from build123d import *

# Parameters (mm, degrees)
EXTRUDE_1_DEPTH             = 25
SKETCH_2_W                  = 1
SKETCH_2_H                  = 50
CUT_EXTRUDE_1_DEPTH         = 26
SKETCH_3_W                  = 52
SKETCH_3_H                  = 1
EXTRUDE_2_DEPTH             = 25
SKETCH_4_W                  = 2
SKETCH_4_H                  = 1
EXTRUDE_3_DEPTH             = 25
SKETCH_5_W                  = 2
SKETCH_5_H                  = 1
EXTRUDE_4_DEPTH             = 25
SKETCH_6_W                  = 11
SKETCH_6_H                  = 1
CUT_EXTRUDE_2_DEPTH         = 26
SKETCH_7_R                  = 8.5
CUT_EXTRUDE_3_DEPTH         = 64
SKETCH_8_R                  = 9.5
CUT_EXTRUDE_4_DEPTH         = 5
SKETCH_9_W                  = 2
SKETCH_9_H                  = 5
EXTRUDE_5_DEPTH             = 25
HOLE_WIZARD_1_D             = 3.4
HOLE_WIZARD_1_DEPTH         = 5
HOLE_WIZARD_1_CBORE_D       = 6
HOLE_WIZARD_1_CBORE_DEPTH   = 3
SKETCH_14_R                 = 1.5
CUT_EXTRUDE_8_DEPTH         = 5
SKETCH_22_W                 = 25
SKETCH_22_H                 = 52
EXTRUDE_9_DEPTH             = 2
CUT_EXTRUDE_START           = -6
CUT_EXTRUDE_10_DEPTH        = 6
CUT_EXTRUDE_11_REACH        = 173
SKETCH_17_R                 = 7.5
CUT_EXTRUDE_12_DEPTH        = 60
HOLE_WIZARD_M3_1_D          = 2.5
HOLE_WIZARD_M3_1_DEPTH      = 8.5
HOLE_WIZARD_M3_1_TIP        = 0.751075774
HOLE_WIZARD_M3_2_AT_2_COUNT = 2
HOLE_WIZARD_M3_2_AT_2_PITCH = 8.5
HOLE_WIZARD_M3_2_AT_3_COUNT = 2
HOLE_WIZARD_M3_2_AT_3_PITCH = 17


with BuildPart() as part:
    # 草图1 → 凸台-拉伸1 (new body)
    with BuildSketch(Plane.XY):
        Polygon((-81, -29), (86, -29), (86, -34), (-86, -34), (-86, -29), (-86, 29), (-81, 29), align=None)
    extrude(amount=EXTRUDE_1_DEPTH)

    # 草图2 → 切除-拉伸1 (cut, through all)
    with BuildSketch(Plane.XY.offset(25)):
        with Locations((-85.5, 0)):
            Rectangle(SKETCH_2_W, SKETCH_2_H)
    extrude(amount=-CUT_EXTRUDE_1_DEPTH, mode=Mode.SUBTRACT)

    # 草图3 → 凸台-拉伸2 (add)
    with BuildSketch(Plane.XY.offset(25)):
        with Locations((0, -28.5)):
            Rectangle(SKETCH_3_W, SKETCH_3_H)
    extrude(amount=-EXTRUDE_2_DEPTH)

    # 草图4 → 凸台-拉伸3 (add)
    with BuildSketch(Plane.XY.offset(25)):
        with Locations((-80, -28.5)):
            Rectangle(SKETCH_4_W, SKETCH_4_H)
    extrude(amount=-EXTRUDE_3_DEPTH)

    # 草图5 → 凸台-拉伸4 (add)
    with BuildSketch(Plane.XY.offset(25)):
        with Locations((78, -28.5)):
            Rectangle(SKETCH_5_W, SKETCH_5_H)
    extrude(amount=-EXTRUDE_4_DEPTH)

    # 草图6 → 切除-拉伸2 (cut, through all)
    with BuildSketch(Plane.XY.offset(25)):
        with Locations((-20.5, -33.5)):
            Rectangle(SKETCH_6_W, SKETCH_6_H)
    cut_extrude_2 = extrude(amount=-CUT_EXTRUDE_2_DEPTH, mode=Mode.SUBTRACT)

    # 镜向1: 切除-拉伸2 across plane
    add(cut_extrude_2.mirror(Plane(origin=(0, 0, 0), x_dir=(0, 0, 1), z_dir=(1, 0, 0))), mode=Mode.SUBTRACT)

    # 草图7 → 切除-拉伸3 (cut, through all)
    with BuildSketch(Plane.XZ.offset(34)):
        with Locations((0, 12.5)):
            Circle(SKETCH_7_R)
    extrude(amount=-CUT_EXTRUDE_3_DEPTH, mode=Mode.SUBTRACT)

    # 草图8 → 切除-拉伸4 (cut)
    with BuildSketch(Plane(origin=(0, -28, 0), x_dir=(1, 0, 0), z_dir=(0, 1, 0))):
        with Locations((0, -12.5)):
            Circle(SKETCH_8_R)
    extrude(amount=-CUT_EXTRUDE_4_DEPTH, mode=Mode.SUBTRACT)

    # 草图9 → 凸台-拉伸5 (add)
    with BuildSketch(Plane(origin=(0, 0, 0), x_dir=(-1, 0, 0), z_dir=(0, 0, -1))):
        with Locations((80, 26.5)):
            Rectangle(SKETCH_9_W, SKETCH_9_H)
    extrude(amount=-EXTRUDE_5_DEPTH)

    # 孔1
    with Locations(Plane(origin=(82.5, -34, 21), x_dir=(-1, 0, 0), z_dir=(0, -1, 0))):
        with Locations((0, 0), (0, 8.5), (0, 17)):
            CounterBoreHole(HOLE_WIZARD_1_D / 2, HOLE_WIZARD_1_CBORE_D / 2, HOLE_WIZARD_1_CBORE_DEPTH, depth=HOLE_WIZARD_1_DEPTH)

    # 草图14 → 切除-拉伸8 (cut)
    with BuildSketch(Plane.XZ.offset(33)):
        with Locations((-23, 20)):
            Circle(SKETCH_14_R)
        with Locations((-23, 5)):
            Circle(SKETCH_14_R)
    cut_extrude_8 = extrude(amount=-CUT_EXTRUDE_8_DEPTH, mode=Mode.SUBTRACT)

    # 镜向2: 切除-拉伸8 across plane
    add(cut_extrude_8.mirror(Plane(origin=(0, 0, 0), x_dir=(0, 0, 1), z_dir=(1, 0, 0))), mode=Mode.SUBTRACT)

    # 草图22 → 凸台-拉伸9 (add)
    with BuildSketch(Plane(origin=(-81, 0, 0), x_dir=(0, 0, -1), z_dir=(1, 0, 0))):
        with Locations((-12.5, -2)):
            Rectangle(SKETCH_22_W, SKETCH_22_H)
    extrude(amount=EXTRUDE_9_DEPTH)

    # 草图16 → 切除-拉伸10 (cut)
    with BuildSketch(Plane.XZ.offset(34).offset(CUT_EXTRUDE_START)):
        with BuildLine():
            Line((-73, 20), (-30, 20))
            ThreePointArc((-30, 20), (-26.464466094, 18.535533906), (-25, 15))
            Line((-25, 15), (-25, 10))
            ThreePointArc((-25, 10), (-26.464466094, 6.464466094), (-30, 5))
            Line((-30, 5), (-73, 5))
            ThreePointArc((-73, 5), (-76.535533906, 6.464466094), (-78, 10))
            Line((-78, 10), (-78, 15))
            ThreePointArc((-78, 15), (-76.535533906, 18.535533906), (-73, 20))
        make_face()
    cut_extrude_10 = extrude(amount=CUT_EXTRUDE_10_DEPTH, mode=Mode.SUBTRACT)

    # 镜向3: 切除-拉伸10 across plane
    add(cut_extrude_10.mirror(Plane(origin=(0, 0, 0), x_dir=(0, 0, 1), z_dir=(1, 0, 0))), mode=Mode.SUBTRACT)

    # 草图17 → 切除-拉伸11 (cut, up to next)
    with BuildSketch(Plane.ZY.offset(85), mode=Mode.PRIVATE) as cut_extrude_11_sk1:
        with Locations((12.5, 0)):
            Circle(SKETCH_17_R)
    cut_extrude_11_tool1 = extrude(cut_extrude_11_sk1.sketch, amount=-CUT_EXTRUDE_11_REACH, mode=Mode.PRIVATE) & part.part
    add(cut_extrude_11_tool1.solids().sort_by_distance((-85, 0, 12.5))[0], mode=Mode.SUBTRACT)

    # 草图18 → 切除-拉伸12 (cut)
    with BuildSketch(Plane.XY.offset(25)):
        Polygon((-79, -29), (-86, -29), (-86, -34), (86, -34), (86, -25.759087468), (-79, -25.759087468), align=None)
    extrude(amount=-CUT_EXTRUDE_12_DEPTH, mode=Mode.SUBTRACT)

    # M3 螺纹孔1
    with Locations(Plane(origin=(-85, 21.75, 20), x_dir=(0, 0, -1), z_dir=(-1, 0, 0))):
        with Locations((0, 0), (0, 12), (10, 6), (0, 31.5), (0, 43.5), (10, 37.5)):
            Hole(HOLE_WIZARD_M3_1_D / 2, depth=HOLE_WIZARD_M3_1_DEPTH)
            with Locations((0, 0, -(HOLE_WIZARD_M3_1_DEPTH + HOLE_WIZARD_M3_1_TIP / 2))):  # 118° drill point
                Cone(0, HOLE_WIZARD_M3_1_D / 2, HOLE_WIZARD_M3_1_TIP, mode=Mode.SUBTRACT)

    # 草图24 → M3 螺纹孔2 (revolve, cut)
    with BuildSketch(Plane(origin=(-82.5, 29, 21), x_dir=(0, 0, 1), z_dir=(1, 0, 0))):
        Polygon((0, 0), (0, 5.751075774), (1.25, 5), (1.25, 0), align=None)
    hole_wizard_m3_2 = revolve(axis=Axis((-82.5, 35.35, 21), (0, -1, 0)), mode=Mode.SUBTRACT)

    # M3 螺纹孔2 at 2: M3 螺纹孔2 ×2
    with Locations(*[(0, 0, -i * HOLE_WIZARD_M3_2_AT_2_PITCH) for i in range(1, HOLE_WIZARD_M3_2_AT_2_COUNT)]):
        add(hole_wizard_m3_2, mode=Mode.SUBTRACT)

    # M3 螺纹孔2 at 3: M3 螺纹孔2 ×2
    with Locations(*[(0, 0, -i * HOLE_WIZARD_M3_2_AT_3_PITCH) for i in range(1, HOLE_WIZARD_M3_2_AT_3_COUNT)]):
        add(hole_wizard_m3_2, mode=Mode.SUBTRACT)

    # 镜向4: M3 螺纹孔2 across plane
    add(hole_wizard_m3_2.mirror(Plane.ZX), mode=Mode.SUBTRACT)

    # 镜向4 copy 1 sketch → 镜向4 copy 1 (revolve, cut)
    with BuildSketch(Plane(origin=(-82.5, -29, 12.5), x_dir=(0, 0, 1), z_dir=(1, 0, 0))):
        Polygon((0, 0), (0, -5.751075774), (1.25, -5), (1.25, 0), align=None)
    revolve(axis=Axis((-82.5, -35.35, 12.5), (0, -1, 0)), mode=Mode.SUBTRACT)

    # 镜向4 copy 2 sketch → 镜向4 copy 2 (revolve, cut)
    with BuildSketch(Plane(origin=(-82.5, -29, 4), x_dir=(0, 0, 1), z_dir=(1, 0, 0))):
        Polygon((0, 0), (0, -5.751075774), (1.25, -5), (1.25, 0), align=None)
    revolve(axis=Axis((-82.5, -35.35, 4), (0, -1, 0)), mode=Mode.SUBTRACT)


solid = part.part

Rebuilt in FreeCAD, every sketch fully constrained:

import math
import FreeCAD as App
import Part
import Sketcher

V = App.Vector
Q = App.Units.Quantity


def add_polygon(sketch, points):
    """Adds a closed chain of lines whose ends are joined by coincident constraints."""
    first, n = sketch.GeometryCount, len(points)
    for a, b in zip(points, points[1:] + points[:1]):
        sketch.addGeometry(Part.LineSegment(App.Vector(*a, 0), App.Vector(*b, 0)), False)
    for i in range(n):
        sketch.addConstraint(Sketcher.Constraint("Coincident", first + i, 2, first + (i + 1) % n, 1))

doc = App.newDocument("Part")
body = doc.addObject("PartDesign::Body", "Body")

sketch1 = body.newObject("Sketcher::SketchObject", "Sketch")
sketch1.AttachmentSupport = (doc.getObject("XY_Plane"), [""])
sketch1.MapMode = "FlatFace"
add_polygon(sketch1, [(86, -29), (-81, -29), (-81, 29), (-86, 29), (-86, -34), (86, -34)])
sketch1.addConstraint(Sketcher.Constraint("Horizontal", 0))
sketch1.addConstraint(Sketcher.Constraint("Vertical", 1))
sketch1.addConstraint(Sketcher.Constraint("Horizontal", 2))
sketch1.addConstraint(Sketcher.Constraint("Vertical", 3))
sketch1.addConstraint(Sketcher.Constraint("Horizontal", 4))
sketch1.addConstraint(Sketcher.Constraint("Vertical", 5))
sketch1.addConstraint(Sketcher.Constraint("Symmetric", 2, 2, 5, 2, -1, 1))
sketch1.addConstraint(Sketcher.Constraint("Equal", 2, 5))
sketch1.addConstraint(Sketcher.Constraint("DistanceX", 0, 2, 0, 1, Q("167 mm")))
sketch1.addConstraint(Sketcher.Constraint("DistanceX", 2, 2, 2, 1, Q("5 mm")))
sketch1.addConstraint(Sketcher.Constraint("DistanceY", 1, 1, 1, 2, Q("58 mm")))
pad1 = body.newObject("PartDesign::Pad", "Pad")
pad1.Profile = sketch1
pad1.Length = 25

sketch2 = body.newObject("Sketcher::SketchObject", "Sketch001")
sketch2.AttachmentSupport = (doc.getObject("XY_Plane"), [""])
sketch2.MapMode = "FlatFace"
sketch2.AttachmentOffset = App.Placement(V(0, 0, 25), App.Rotation())
add_polygon(sketch2, [(-86, 25), (-86, -25), (-85, -25), (-85, 25)])
sketch2.addConstraint(Sketcher.Constraint("Vertical", 0))
sketch2.addConstraint(Sketcher.Constraint("Horizontal", 1))
sketch2.addConstraint(Sketcher.Constraint("Vertical", 2))
sketch2.addConstraint(Sketcher.Constraint("Horizontal", 3))
sketch2.addConstraint(Sketcher.Constraint("DistanceX", 1, 1, 1, 2, Q("1 mm")))
sketch2.addConstraint(Sketcher.Constraint("DistanceY", 0, 2, 0, 1, Q("50 mm")))
sketch2.addConstraint(Sketcher.Constraint("DistanceX", 0, 2, -1, 1, Q("86 mm")))
sketch2.addConstraint(Sketcher.Constraint("DistanceY", 0, 2, -1, 1, Q("25 mm")))
pocket1 = body.newObject("PartDesign::Pocket", "Pocket")
pocket1.Profile = sketch2
pocket1.Type = "ThroughAll"

sketch3 = body.newObject("Sketcher::SketchObject", "Sketch002")
sketch3.AttachmentSupport = (doc.getObject("XY_Plane"), [""])
sketch3.MapMode = "FlatFace"
sketch3.AttachmentOffset = App.Placement(V(0, 0, 25), App.Rotation())
add_polygon(sketch3, [(-26, -28), (-26, -29), (26, -29), (26, -28)])
sketch3.addConstraint(Sketcher.Constraint("Vertical", 0))
sketch3.addConstraint(Sketcher.Constraint("Horizontal", 1))
sketch3.addConstraint(Sketcher.Constraint("Vertical", 2))
sketch3.addConstraint(Sketcher.Constraint("Horizontal", 3))
sketch3.addConstraint(Sketcher.Constraint("DistanceX", 1, 1, 1, 2, Q("52 mm")))
sketch3.addConstraint(Sketcher.Constraint("DistanceY", 0, 2, 0, 1, Q("1 mm")))
sketch3.addConstraint(Sketcher.Constraint("DistanceX", 0, 2, -1, 1, Q("26 mm")))
sketch3.addConstraint(Sketcher.Constraint("DistanceY", 0, 2, -1, 1, Q("29 mm")))
pad2 = body.newObject("PartDesign::Pad", "Pad001")
pad2.Profile = sketch3
pad2.Length = 25
pad2.Reversed = True

sketch4 = body.newObject("Sketcher::SketchObject", "Sketch003")
sketch4.AttachmentSupport = (doc.getObject("XY_Plane"), [""])
sketch4.MapMode = "FlatFace"
sketch4.AttachmentOffset = App.Placement(V(0, 0, 25), App.Rotation())
add_polygon(sketch4, [(-81, -28), (-81, -29), (-79, -29), (-79, -28)])
sketch4.addConstraint(Sketcher.Constraint("Vertical", 0))
sketch4.addConstraint(Sketcher.Constraint("Horizontal", 1))
sketch4.addConstraint(Sketcher.Constraint("Vertical", 2))
sketch4.addConstraint(Sketcher.Constraint("Horizontal", 3))
sketch4.addConstraint(Sketcher.Constraint("DistanceX", 1, 1, 1, 2, Q("2 mm")))
sketch4.addConstraint(Sketcher.Constraint("DistanceY", 0, 2, 0, 1, Q("1 mm")))
sketch4.addConstraint(Sketcher.Constraint("DistanceX", 0, 2, -1, 1, Q("81 mm")))
sketch4.addConstraint(Sketcher.Constraint("DistanceY", 0, 2, -1, 1, Q("29 mm")))
pad3 = body.newObject("PartDesign::Pad", "Pad002")
pad3.Profile = sketch4
pad3.Length = 25
pad3.Reversed = True

sketch5 = body.newObject("Sketcher::SketchObject", "Sketch004")
sketch5.AttachmentSupport = (doc.getObject("XY_Plane"), [""])
sketch5.MapMode = "FlatFace"
sketch5.AttachmentOffset = App.Placement(V(0, 0, 25), App.Rotation())
add_polygon(sketch5, [(77, -28), (77, -29), (79, -29), (79, -28)])
sketch5.addConstraint(Sketcher.Constraint("Vertical", 0))
sketch5.addConstraint(Sketcher.Constraint("Horizontal", 1))
sketch5.addConstraint(Sketcher.Constraint("Vertical", 2))
sketch5.addConstraint(Sketcher.Constraint("Horizontal", 3))
sketch5.addConstraint(Sketcher.Constraint("DistanceX", 1, 1, 1, 2, Q("2 mm")))
sketch5.addConstraint(Sketcher.Constraint("DistanceY", 0, 2, 0, 1, Q("1 mm")))
sketch5.addConstraint(Sketcher.Constraint("DistanceX", -1, 1, 0, 2, Q("77 mm")))
sketch5.addConstraint(Sketcher.Constraint("DistanceY", 0, 2, -1, 1, Q("29 mm")))
pad4 = body.newObject("PartDesign::Pad", "Pad003")
pad4.Profile = sketch5
pad4.Length = 25
pad4.Reversed = True

sketch6 = body.newObject("Sketcher::SketchObject", "Sketch005")
sketch6.AttachmentSupport = (doc.getObject("XY_Plane"), [""])
sketch6.MapMode = "FlatFace"
sketch6.AttachmentOffset = App.Placement(V(0, 0, 25), App.Rotation())
add_polygon(sketch6, [(-26, -33), (-26, -34), (-15, -34), (-15, -33)])
sketch6.addConstraint(Sketcher.Constraint("Vertical", 0))
sketch6.addConstraint(Sketcher.Constraint("Horizontal", 1))
sketch6.addConstraint(Sketcher.Constraint("Vertical", 2))
sketch6.addConstraint(Sketcher.Constraint("Horizontal", 3))
sketch6.addConstraint(Sketcher.Constraint("DistanceX", 1, 1, 1, 2, Q("11 mm")))
sketch6.addConstraint(Sketcher.Constraint("DistanceY", 0, 2, 0, 1, Q("1 mm")))
sketch6.addConstraint(Sketcher.Constraint("DistanceX", 0, 2, -1, 1, Q("26 mm")))
sketch6.addConstraint(Sketcher.Constraint("DistanceY", 0, 2, -1, 1, Q("34 mm")))
pocket2 = body.newObject("PartDesign::Pocket", "Pocket001")
pocket2.Profile = sketch6
pocket2.Type = "ThroughAll"
doc.recompute()

mirrored = body.newObject("PartDesign::Mirrored", "Mirrored")
mirrored.Originals = [pocket2]
mirrored.MirrorPlane = (doc.getObject("YZ_Plane"), [""])
body.Tip = mirrored

sketch7 = body.newObject("Sketcher::SketchObject", "Sketch006")
sketch7.AttachmentSupport = (doc.getObject("XZ_Plane"), [""])
sketch7.MapMode = "FlatFace"
sketch7.AttachmentOffset = App.Placement(V(0, 0, 34), App.Rotation())
sketch7.addGeometry(Part.Circle(V(0, 12, 0), V(0, 0, 1), 8), False)
sketch7.addConstraint(Sketcher.Constraint("PointOnObject", 0, 3, -2))
sketch7.addConstraint(Sketcher.Constraint("Diameter", 0, Q("17 mm")))
sketch7.addConstraint(Sketcher.Constraint("DistanceY", -1, 1, 0, 3, Q("12.5 mm")))
pocket3 = body.newObject("PartDesign::Pocket", "Pocket002")
pocket3.Profile = sketch7
pocket3.Type = "ThroughAll"

sketch8 = body.newObject("Sketcher::SketchObject", "Sketch007")
sketch8.AttachmentSupport = (doc.getObject("XZ_Plane"), [""])
sketch8.MapMode = "FlatFace"
sketch8.AttachmentOffset = App.Placement(V(0, 0, 28), App.Rotation())
sketch8.addGeometry(Part.Circle(V(0, 12, 0), V(0, 0, 1), 10), False)
sketch8.addConstraint(Sketcher.Constraint("PointOnObject", 0, 3, -2))
sketch8.addConstraint(Sketcher.Constraint("Diameter", 0, Q("19 mm")))
sketch8.addConstraint(Sketcher.Constraint("DistanceY", -1, 1, 0, 3, Q("12.5 mm")))
pocket4 = body.newObject("PartDesign::Pocket", "Pocket003")
pocket4.Profile = sketch8
pocket4.Length = 5
pocket4.Reversed = True

sketch9 = body.newObject("Sketcher::SketchObject", "Sketch008")
sketch9.AttachmentSupport = (doc.getObject("XY_Plane"), [""])
sketch9.MapMode = "FlatFace"
add_polygon(sketch9, [(-79, 29), (-79, 24), (-81, 24), (-81, 29)])
sketch9.addConstraint(Sketcher.Constraint("Vertical", 0))
sketch9.addConstraint(Sketcher.Constraint("Horizontal", 1))
sketch9.addConstraint(Sketcher.Constraint("Vertical", 2))
sketch9.addConstraint(Sketcher.Constraint("Horizontal", 3))
sketch9.addConstraint(Sketcher.Constraint("DistanceX", 1, 2, 1, 1, Q("2 mm")))
sketch9.addConstraint(Sketcher.Constraint("DistanceY", 0, 2, 0, 1, Q("5 mm")))
sketch9.addConstraint(Sketcher.Constraint("DistanceX", 0, 2, -1, 1, Q("79 mm")))
sketch9.addConstraint(Sketcher.Constraint("DistanceY", -1, 1, 0, 2, Q("24 mm")))
pad5 = body.newObject("PartDesign::Pad", "Pad004")
pad5.Profile = sketch9
pad5.Length = 25

sketch10 = body.newObject("Sketcher::SketchObject", "Sketch009")
sketch10.AttachmentSupport = (doc.getObject("XZ_Plane"), [""])
sketch10.MapMode = "FlatFace"
sketch10.AttachmentOffset = App.Placement(V(0, 0, 34), App.Rotation())
sketch10.addGeometry(Part.Circle(V(82.5, 21, 0), V(0, 0, 1), 1.7), False)
sketch10.addGeometry(Part.Circle(V(82.5, 12.5, 0), V(0, 0, 1), 1.7), False)
sketch10.addGeometry(Part.Circle(V(82.5, 4, 0), V(0, 0, 1), 1.7), False)
sketch10.addConstraint(Sketcher.Constraint("Equal", 0, 1))
sketch10.addConstraint(Sketcher.Constraint("Equal", 1, 2))
sketch10.addConstraint(Sketcher.Constraint("Vertical", 0, 3, 1, 3))
sketch10.addConstraint(Sketcher.Constraint("Vertical", 1, 3, 2, 3))
sketch10.addConstraint(Sketcher.Constraint("Diameter", 0, Q("3.4 mm")))
sketch10.addConstraint(Sketcher.Constraint("DistanceY", -1, 1, 0, 3, Q("21 mm")))
sketch10.addConstraint(Sketcher.Constraint("DistanceY", -1, 1, 2, 3, Q("4 mm")))
sketch10.addConstraint(Sketcher.Constraint("DistanceX", -1, 1, 0, 3, Q("82.5 mm")))
sketch10.addConstraint(Sketcher.Constraint("DistanceY", -1, 1, 1, 3, Q("12.5 mm")))
doc.recompute()
hole = body.newObject("PartDesign::Hole", "Hole")
hole.Profile = sketch10
hole.ThreadType = "None"
hole.Diameter = 3.4
hole.DepthType = "Dimension"
hole.Depth = 5
hole.DrillPoint = "Flat"
hole.HoleCutType = "Counterbore"
hole.HoleCutDiameter = 6
hole.HoleCutDepth = 3

sketch11 = body.newObject("Sketcher::SketchObject", "Sketch010")
sketch11.AttachmentSupport = (doc.getObject("XZ_Plane"), [""])
sketch11.MapMode = "FlatFace"
sketch11.AttachmentOffset = App.Placement(V(0, 0, 33), App.Rotation())
sketch11.addGeometry(Part.Circle(V(-23, 20, 0), V(0, 0, 1), 1.5), False)
sketch11.addGeometry(Part.Circle(V(-23, 5, 0), V(0, 0, 1), 1.5), False)
sketch11.addConstraint(Sketcher.Constraint("Equal", 0, 1))
sketch11.addConstraint(Sketcher.Constraint("Vertical", 0, 3, 1, 3))
sketch11.addConstraint(Sketcher.Constraint("Diameter", 0, Q("3 mm")))
sketch11.addConstraint(Sketcher.Constraint("DistanceX", 0, 3, -1, 1, Q("23 mm")))
sketch11.addConstraint(Sketcher.Constraint("DistanceY", -1, 1, 0, 3, Q("20 mm")))
sketch11.addConstraint(Sketcher.Constraint("DistanceY", -1, 1, 1, 3, Q("5 mm")))
pocket5 = body.newObject("PartDesign::Pocket", "Pocket004")
pocket5.Profile = sketch11
pocket5.Length = 5
doc.recompute()

mirrored2 = body.newObject("PartDesign::Mirrored", "Mirrored001")
mirrored2.Originals = [pocket5]
mirrored2.MirrorPlane = (doc.getObject("YZ_Plane"), [""])
body.Tip = mirrored2

sketch12 = body.newObject("Sketcher::SketchObject", "Sketch011")
sketch12.AttachmentSupport = (doc.getObject("YZ_Plane"), [""])
sketch12.MapMode = "FlatFace"
sketch12.AttachmentOffset = App.Placement(V(0, 0, -81), App.Rotation())
add_polygon(sketch12, [(24, 25), (-28, 25), (-28, 0), (24, 0)])
sketch12.addConstraint(Sketcher.Constraint("Horizontal", 0))
sketch12.addConstraint(Sketcher.Constraint("Vertical", 1))
sketch12.addConstraint(Sketcher.Constraint("Horizontal", 2))
sketch12.addConstraint(Sketcher.Constraint("Vertical", 3))
sketch12.addConstraint(Sketcher.Constraint("PointOnObject", 1, 2, -1))
sketch12.addConstraint(Sketcher.Constraint("DistanceX", 0, 2, 0, 1, Q("52 mm")))
sketch12.addConstraint(Sketcher.Constraint("DistanceY", 1, 2, 1, 1, Q("25 mm")))
sketch12.addConstraint(Sketcher.Constraint("DistanceX", 0, 2, -1, 1, Q("28 mm")))
pad6 = body.newObject("PartDesign::Pad", "Pad005")
pad6.Profile = sketch12
pad6.Length = 2

sketch13 = body.newObject("Sketcher::SketchObject", "Sketch012")
sketch13.AttachmentSupport = (doc.getObject("XZ_Plane"), [""])
sketch13.MapMode = "FlatFace"
sketch13.AttachmentOffset = App.Placement(V(0, 0, 28), App.Rotation())
sketch13.addGeometry(Part.LineSegment(V(-30, 20, 0), V(-73, 20, 0)), False)
sketch13.addGeometry(Part.ArcOfCircle(Part.Circle(V(-73, 15, 0), V(0, 0, 1), 5), math.radians(90), math.radians(180)), False)
sketch13.addGeometry(Part.LineSegment(V(-78, 15, 0), V(-78, 10, 0)), False)
sketch13.addGeometry(Part.ArcOfCircle(Part.Circle(V(-73, 10, 0), V(0, 0, 1), 5), math.radians(180), math.radians(270)), False)
sketch13.addGeometry(Part.LineSegment(V(-73, 5, 0), V(-30, 5, 0)), False)
sketch13.addGeometry(Part.ArcOfCircle(Part.Circle(V(-30, 10, 0), V(0, 0, 1), 5), math.radians(-90), math.radians(0)), False)
sketch13.addGeometry(Part.LineSegment(V(-25, 10, 0), V(-25, 15, 0)), False)
sketch13.addGeometry(Part.ArcOfCircle(Part.Circle(V(-30, 15, 0), V(0, 0, 1), 5), math.radians(0), math.radians(90)), False)
sketch13.addConstraint(Sketcher.Constraint("Tangent", 0, 2, 1, 1))
sketch13.addConstraint(Sketcher.Constraint("Tangent", 1, 2, 2, 1))
sketch13.addConstraint(Sketcher.Constraint("Tangent", 2, 2, 3, 1))
sketch13.addConstraint(Sketcher.Constraint("Tangent", 3, 2, 4, 1))
sketch13.addConstraint(Sketcher.Constraint("Tangent", 4, 2, 5, 1))
sketch13.addConstraint(Sketcher.Constraint("Tangent", 5, 2, 6, 1))
sketch13.addConstraint(Sketcher.Constraint("Tangent", 6, 2, 7, 1))
sketch13.addConstraint(Sketcher.Constraint("Tangent", 7, 2, 0, 1))
sketch13.addConstraint(Sketcher.Constraint("Horizontal", 0))
sketch13.addConstraint(Sketcher.Constraint("Vertical", 2))
sketch13.addConstraint(Sketcher.Constraint("Horizontal", 4))
sketch13.addConstraint(Sketcher.Constraint("Vertical", 6))
sketch13.addConstraint(Sketcher.Constraint("Equal", 1, 3))
sketch13.addConstraint(Sketcher.Constraint("Equal", 3, 5))
sketch13.addConstraint(Sketcher.Constraint("Equal", 5, 7))
sketch13.addConstraint(Sketcher.Constraint("Radius", 1, Q("5 mm")))
sketch13.addConstraint(Sketcher.Constraint("DistanceX", 0, 2, 0, 1, Q("43 mm")))
sketch13.addConstraint(Sketcher.Constraint("DistanceY", 2, 2, 2, 1, Q("5 mm")))
sketch13.addConstraint(Sketcher.Constraint("DistanceX", 1, 3, -1, 1, Q("73 mm")))
sketch13.addConstraint(Sketcher.Constraint("DistanceY", -1, 1, 1, 3, Q("15 mm")))
pocket6 = body.newObject("PartDesign::Pocket", "Pocket005")
pocket6.Profile = sketch13
pocket6.Length = 6
pocket6.Reversed = True
doc.recompute()

mirrored3 = body.newObject("PartDesign::Mirrored", "Mirrored002")
mirrored3.Originals = [pocket6]
mirrored3.MirrorPlane = (doc.getObject("YZ_Plane"), [""])
body.Tip = mirrored3

sketch14 = body.newObject("Sketcher::SketchObject", "Sketch013")
sketch14.AttachmentSupport = (doc.getObject("YZ_Plane"), [""])
sketch14.MapMode = "FlatFace"
sketch14.AttachmentOffset = App.Placement(V(0, 0, -85), App.Rotation())
sketch14.addGeometry(Part.Circle(V(0, 12, 0), V(0, 0, 1), 8), False)
sketch14.addConstraint(Sketcher.Constraint("PointOnObject", 0, 3, -2))
sketch14.addConstraint(Sketcher.Constraint("Diameter", 0, Q("15 mm")))
sketch14.addConstraint(Sketcher.Constraint("DistanceY", -1, 1, 0, 3, Q("12.5 mm")))
pocket7 = body.newObject("PartDesign::Pocket", "Pocket006")
pocket7.Profile = sketch14
pocket7.Type = "UpToFirst"
pocket7.Reversed = True

sketch15 = body.newObject("Sketcher::SketchObject", "Sketch014")
sketch15.AttachmentSupport = (doc.getObject("XY_Plane"), [""])
sketch15.MapMode = "FlatFace"
sketch15.AttachmentOffset = App.Placement(V(0, 0, 25), App.Rotation())
add_polygon(sketch15, [(-79, -29), (-86, -29), (-86, -34), (86, -34), (86, -25.8), (-79, -25.8)])
sketch15.addConstraint(Sketcher.Constraint("Horizontal", 0))
sketch15.addConstraint(Sketcher.Constraint("Vertical", 1))
sketch15.addConstraint(Sketcher.Constraint("Horizontal", 2))
sketch15.addConstraint(Sketcher.Constraint("Vertical", 3))
sketch15.addConstraint(Sketcher.Constraint("Horizontal", 4))
sketch15.addConstraint(Sketcher.Constraint("Vertical", 5))
sketch15.addConstraint(Sketcher.Constraint("DistanceX", 0, 2, 0, 1, Q("7 mm")))
sketch15.addConstraint(Sketcher.Constraint("DistanceX", 2, 1, 2, 2, Q("172 mm")))
sketch15.addConstraint(Sketcher.Constraint("DistanceY", 1, 2, 1, 1, Q("5 mm")))
sketch15.addConstraint(Sketcher.Constraint("DistanceX", 0, 2, -1, 1, Q("86 mm")))
sketch15.addConstraint(Sketcher.Constraint("DistanceY", 0, 2, -1, 1, Q("29 mm")))
sketch15.addConstraint(Sketcher.Constraint("DistanceY", 3, 1, 3, 2, Q("8.240913 mm")))
pocket8 = body.newObject("PartDesign::Pocket", "Pocket007")
pocket8.Profile = sketch15
pocket8.Length = 60

sketch16 = body.newObject("Sketcher::SketchObject", "Sketch015")
sketch16.AttachmentSupport = (doc.getObject("YZ_Plane"), [""])
sketch16.MapMode = "FlatFace"
sketch16.AttachmentOffset = App.Placement(V(0, 0, -85), App.Rotation())
sketch16.addGeometry(Part.Circle(V(21.8, 20, 0), V(0, 0, 1), 1.2), False)
sketch16.addGeometry(Part.Circle(V(9.8, 20, 0), V(0, 0, 1), 1.2), False)
sketch16.addGeometry(Part.Circle(V(15.8, 10, 0), V(0, 0, 1), 1.2), False)
sketch16.addGeometry(Part.Circle(V(-9.8, 20, 0), V(0, 0, 1), 1.2), False)
sketch16.addGeometry(Part.Circle(V(-21.8, 20, 0), V(0, 0, 1), 1.2), False)
sketch16.addGeometry(Part.Circle(V(-15.8, 10, 0), V(0, 0, 1), 1.2), False)
sketch16.addConstraint(Sketcher.Constraint("Equal", 0, 1))
sketch16.addConstraint(Sketcher.Constraint("Equal", 1, 2))
sketch16.addConstraint(Sketcher.Constraint("Equal", 2, 3))
sketch16.addConstraint(Sketcher.Constraint("Equal", 3, 4))
sketch16.addConstraint(Sketcher.Constraint("Equal", 4, 5))
sketch16.addConstraint(Sketcher.Constraint("Symmetric", 1, 3, 3, 3, -2))
sketch16.addConstraint(Sketcher.Constraint("Symmetric", 0, 3, 4, 3, -2))
sketch16.addConstraint(Sketcher.Constraint("Symmetric", 2, 3, 5, 3, -2))
sketch16.addConstraint(Sketcher.Constraint("Horizontal", 0, 3, 1, 3))
sketch16.addConstraint(Sketcher.Constraint("Diameter", 0, Q("2.5 mm")))
sketch16.addConstraint(Sketcher.Constraint("DistanceY", -1, 1, 0, 3, Q("20 mm")))
sketch16.addConstraint(Sketcher.Constraint("DistanceY", -1, 1, 2, 3, Q("10 mm")))
sketch16.addConstraint(Sketcher.Constraint("DistanceX", 1, 3, 0, 3, Q("12 mm")))
sketch16.addConstraint(Sketcher.Constraint("DistanceX", 2, 3, 0, 3, Q("6 mm")))
sketch16.addConstraint(Sketcher.Constraint("DistanceX", 3, 3, 1, 3, Q("19.5 mm")))
doc.recompute()
hole2 = body.newObject("PartDesign::Hole", "Hole001")
hole2.Profile = sketch16
hole2.ThreadType = "None"
hole2.Diameter = 2.5
hole2.DepthType = "Dimension"
hole2.Depth = 8.5
hole2.DrillPoint = "Angled"
hole2.DrillPointAngle = 118
hole2.Reversed = True

sketch17 = body.newObject("Sketcher::SketchObject", "Sketch016")
sketch17.AttachmentSupport = (doc.getObject("YZ_Plane"), [""])
sketch17.MapMode = "FlatFace"
sketch17.AttachmentOffset = App.Placement(V(0, 0, -82.5), App.Rotation())
add_polygon(sketch17, [(23.2, 21), (29, 21), (29, 22.2), (24, 22.2)])
sketch17.addGeometry(Part.LineSegment(V(29, 21, 0), V(23.2, 21, 0)), True)
sketch17.addConstraint(Sketcher.Constraint("Horizontal", 0))
sketch17.addConstraint(Sketcher.Constraint("Vertical", 1))
sketch17.addConstraint(Sketcher.Constraint("Horizontal", 2))
sketch17.addConstraint(Sketcher.Constraint("Horizontal", 4))
sketch17.addConstraint(Sketcher.Constraint("Coincident", 4, 1, 0, 2))
sketch17.addConstraint(Sketcher.Constraint("Equal", 0, 4))
sketch17.addConstraint(Sketcher.Constraint("DistanceX", 2, 2, 2, 1, Q("5 mm")))
sketch17.addConstraint(Sketcher.Constraint("Angle", 3, Q("-121 deg")))
sketch17.addConstraint(Sketcher.Constraint("DistanceX", -1, 1, 0, 2, Q("29 mm")))
sketch17.addConstraint(Sketcher.Constraint("DistanceY", -1, 1, 0, 2, Q("21 mm")))
sketch17.addConstraint(Sketcher.Constraint("DistanceY", 1, 1, 1, 2, Q("1.25 mm")))
groove = body.newObject("PartDesign::Groove", "Groove")
groove.Profile = sketch17
groove.ReferenceAxis = (sketch17, ["Axis0"])
groove.Angle = 360
doc.recompute()

linearpattern = body.newObject("PartDesign::LinearPattern", "LinearPattern")
linearpattern.Originals = [groove]
linearpattern.Direction = (doc.getObject("Z_Axis"), [""])
linearpattern.Mode = "offset"
linearpattern.Offset = 8.5
linearpattern.Occurrences = 2
linearpattern.Reversed = True
body.Tip = linearpattern
doc.recompute()

linearpattern2 = body.newObject("PartDesign::LinearPattern", "LinearPattern001")
linearpattern2.Originals = [groove]
linearpattern2.Direction = (doc.getObject("Z_Axis"), [""])
linearpattern2.Mode = "offset"
linearpattern2.Offset = 17
linearpattern2.Occurrences = 2
linearpattern2.Reversed = True
body.Tip = linearpattern2
doc.recompute()

mirrored4 = body.newObject("PartDesign::Mirrored", "Mirrored003")
mirrored4.Originals = [groove]
mirrored4.MirrorPlane = (doc.getObject("XZ_Plane"), [""])
body.Tip = mirrored4

sketch18 = body.newObject("Sketcher::SketchObject", "Sketch017")
sketch18.AttachmentSupport = (doc.getObject("YZ_Plane"), [""])
sketch18.MapMode = "FlatFace"
sketch18.AttachmentOffset = App.Placement(V(0, 0, -82.5), App.Rotation())
add_polygon(sketch18, [(-29, 12.5), (-23.2, 12.5), (-24, 13.8), (-29, 13.8)])
sketch18.addGeometry(Part.LineSegment(V(-23.2, 12.5, 0), V(-29, 12.5, 0)), True)
sketch18.addConstraint(Sketcher.Constraint("Horizontal", 0))
sketch18.addConstraint(Sketcher.Constraint("Horizontal", 2))
sketch18.addConstraint(Sketcher.Constraint("Vertical", 3))
sketch18.addConstraint(Sketcher.Constraint("Horizontal", 4))
sketch18.addConstraint(Sketcher.Constraint("Coincident", 4, 1, 0, 2))
sketch18.addConstraint(Sketcher.Constraint("Vertical", 2, 2, 4, 2))
sketch18.addConstraint(Sketcher.Constraint("DistanceX", 2, 2, 2, 1, Q("5 mm")))
sketch18.addConstraint(Sketcher.Constraint("Angle", 1, Q("121 deg")))
sketch18.addConstraint(Sketcher.Constraint("DistanceX", 1, 2, -1, 1, Q("24 mm")))
sketch18.addConstraint(Sketcher.Constraint("DistanceY", 3, 2, 3, 1, Q("1.25 mm")))
sketch18.addConstraint(Sketcher.Constraint("DistanceY", -1, 1, 0, 2, Q("12.5 mm")))
groove2 = body.newObject("PartDesign::Groove", "Groove001")
groove2.Profile = sketch18
groove2.ReferenceAxis = (sketch18, ["Axis0"])
groove2.Angle = 360

sketch19 = body.newObject("Sketcher::SketchObject", "Sketch018")
sketch19.AttachmentSupport = (doc.getObject("YZ_Plane"), [""])
sketch19.MapMode = "FlatFace"
sketch19.AttachmentOffset = App.Placement(V(0, 0, -82.5), App.Rotation())
add_polygon(sketch19, [(-29, 4), (-23.2, 4), (-24, 5.2), (-29, 5.2)])
sketch19.addGeometry(Part.LineSegment(V(-23.2, 4, 0), V(-29, 4, 0)), True)
sketch19.addConstraint(Sketcher.Constraint("Horizontal", 0))
sketch19.addConstraint(Sketcher.Constraint("Horizontal", 2))
sketch19.addConstraint(Sketcher.Constraint("Vertical", 3))
sketch19.addConstraint(Sketcher.Constraint("Horizontal", 4))
sketch19.addConstraint(Sketcher.Constraint("Coincident", 4, 1, 0, 2))
sketch19.addConstraint(Sketcher.Constraint("Vertical", 2, 2, 4, 2))
sketch19.addConstraint(Sketcher.Constraint("DistanceX", 2, 2, 2, 1, Q("5 mm")))
sketch19.addConstraint(Sketcher.Constraint("Angle", 1, Q("121 deg")))
sketch19.addConstraint(Sketcher.Constraint("DistanceY", -1, 1, 0, 2, Q("4 mm")))
sketch19.addConstraint(Sketcher.Constraint("DistanceX", 1, 2, -1, 1, Q("24 mm")))
sketch19.addConstraint(Sketcher.Constraint("DistanceY", 3, 2, 3, 1, Q("1.25 mm")))
groove3 = body.newObject("PartDesign::Groove", "Groove002")
groove3.Profile = sketch19
groove3.ReferenceAxis = (sketch19, ["Axis0"])
groove3.Angle = 360

doc.recompute()
